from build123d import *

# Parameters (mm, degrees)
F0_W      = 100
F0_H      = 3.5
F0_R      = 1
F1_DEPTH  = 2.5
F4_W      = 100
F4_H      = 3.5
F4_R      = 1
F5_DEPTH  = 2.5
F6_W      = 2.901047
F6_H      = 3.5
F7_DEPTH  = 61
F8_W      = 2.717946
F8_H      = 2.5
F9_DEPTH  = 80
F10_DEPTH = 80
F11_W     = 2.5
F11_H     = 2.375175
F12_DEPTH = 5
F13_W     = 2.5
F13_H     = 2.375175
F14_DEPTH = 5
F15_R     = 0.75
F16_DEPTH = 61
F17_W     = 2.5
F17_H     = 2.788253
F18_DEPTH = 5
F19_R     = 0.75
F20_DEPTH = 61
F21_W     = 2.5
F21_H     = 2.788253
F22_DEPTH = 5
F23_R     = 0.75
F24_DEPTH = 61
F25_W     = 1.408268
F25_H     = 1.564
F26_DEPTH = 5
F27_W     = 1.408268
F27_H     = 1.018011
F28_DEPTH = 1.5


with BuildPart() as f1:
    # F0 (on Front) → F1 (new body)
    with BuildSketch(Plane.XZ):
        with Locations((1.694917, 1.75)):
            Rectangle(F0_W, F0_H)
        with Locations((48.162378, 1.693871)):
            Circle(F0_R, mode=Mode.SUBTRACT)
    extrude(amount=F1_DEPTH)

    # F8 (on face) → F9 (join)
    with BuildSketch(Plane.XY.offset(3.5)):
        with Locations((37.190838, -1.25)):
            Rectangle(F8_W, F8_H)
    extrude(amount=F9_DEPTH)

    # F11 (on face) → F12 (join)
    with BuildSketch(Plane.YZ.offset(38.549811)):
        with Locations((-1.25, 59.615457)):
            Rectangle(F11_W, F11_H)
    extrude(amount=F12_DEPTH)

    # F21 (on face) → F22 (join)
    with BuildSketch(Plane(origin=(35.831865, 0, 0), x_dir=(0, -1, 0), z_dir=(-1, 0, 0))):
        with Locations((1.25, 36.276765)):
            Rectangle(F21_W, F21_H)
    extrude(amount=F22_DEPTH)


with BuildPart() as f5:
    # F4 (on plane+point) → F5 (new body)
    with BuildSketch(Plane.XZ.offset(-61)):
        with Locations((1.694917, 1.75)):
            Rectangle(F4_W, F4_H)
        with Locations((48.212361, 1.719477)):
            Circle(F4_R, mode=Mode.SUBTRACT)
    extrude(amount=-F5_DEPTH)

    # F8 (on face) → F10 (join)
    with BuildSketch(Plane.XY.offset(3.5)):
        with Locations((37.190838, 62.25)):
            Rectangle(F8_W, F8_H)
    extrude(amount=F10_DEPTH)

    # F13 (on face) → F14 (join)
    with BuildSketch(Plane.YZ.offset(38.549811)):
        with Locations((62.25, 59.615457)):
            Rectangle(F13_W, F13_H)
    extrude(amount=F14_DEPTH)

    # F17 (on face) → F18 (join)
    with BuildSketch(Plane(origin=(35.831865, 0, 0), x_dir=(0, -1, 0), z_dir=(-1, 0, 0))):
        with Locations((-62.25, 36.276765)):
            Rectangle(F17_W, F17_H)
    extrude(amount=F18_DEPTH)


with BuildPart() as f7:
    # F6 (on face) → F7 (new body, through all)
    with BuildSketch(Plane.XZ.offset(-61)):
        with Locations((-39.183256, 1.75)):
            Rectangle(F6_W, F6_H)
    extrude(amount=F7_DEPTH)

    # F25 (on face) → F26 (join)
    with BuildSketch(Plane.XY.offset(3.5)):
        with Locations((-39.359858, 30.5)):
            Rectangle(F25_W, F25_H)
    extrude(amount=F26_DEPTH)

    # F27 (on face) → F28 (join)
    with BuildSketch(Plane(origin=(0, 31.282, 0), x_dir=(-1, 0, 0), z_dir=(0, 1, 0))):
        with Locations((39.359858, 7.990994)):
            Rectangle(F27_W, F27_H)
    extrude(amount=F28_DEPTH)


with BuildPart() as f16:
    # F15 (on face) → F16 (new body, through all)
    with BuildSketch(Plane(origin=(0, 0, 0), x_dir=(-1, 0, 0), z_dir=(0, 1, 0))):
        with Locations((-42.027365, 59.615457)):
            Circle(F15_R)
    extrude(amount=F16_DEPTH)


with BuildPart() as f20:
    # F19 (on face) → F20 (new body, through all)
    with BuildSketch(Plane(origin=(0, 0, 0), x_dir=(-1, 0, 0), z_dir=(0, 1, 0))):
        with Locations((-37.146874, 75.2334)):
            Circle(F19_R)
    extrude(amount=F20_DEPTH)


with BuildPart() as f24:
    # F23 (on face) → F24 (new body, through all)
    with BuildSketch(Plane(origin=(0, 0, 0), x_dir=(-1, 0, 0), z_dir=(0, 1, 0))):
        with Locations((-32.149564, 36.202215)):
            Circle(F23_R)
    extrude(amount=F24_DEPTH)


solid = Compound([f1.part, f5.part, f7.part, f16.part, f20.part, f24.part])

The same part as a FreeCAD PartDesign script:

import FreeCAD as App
import Part
import Sketcher

doc = App.newDocument("Part")
body = doc.addObject("PartDesign::Body", "Body")

# Sketch on XZ plane
sketch1 = body.newObject("Sketcher::SketchObject", "Sketch")
sketch1.AttachmentSupport = (doc.getObject("XZ_Plane"), [""])
sketch1.MapMode = "FlatFace"
sketch1.addGeometry([
    Part.LineSegment(App.Vector(-48.3, 3.5, 0), App.Vector(-48.3, 0, 0)),  # 0
    Part.LineSegment(App.Vector(-48.3, 0, 0), App.Vector(51.7, 0, 0)),  # 1
    Part.LineSegment(App.Vector(51.7, 0, 0), App.Vector(51.7, 3.5, 0)),  # 2
    Part.LineSegment(App.Vector(51.7, 3.5, 0), App.Vector(-48.3, 3.5, 0)),  # 3
    Part.Circle(App.Vector(48.2, 1.7, 0), App.Vector(0, 0, 1), 1),  # 4
], False)
sketch1.addConstraint([
    Sketcher.Constraint("Coincident", 0, 2, 1, 1),
    Sketcher.Constraint("Coincident", 1, 2, 2, 1),
    Sketcher.Constraint("Coincident", 2, 2, 3, 1),
    Sketcher.Constraint("Coincident", 3, 2, 0, 1),
    Sketcher.Constraint("Vertical", 0),
    Sketcher.Constraint("Horizontal", 1),
    Sketcher.Constraint("Vertical", 2),
    Sketcher.Constraint("Horizontal", 3),
    Sketcher.Constraint("PointOnObject", 0, 2, -1),
    Sketcher.Constraint("Diameter", 4, 2.0),
    Sketcher.Constraint("DistanceX", 1, 1, 1, 2, 100.0),
    Sketcher.Constraint("DistanceY", 0, 2, 0, 1, 3.5),
    Sketcher.Constraint("DistanceY", -1, 1, 4, 3, 1.693871),
    Sketcher.Constraint("DistanceX", 0, 2, 4, 3, 96.467461),
    Sketcher.Constraint("DistanceX", -1, 1, 4, 3, 48.162378),
])
pad1 = body.newObject("PartDesign::Pad", "Pad")
pad1.Profile = sketch1
pad1.Length = 2.5

# Sketch on XY plane
sketch2 = body.newObject("Sketcher::SketchObject", "Sketch001")
sketch2.AttachmentSupport = (doc.getObject("XY_Plane"), [""])
sketch2.MapMode = "FlatFace"
sketch2.AttachmentOffset = App.Placement(App.Vector(0, 0, 3.5), App.Rotation())
sketch2.addGeometry([
    Part.LineSegment(App.Vector(35.8, 0, 0), App.Vector(35.8, -2.5, 0)),
    Part.LineSegment(App.Vector(35.8, -2.5, 0), App.Vector(38.5, -2.5, 0)),
    Part.LineSegment(App.Vector(38.5, -2.5, 0), App.Vector(38.5, 0, 0)),
    Part.LineSegment(App.Vector(38.5, 0, 0), App.Vector(35.8, 0, 0)),
], False)
sketch2.addConstraint([
    Sketcher.Constraint("Coincident", 0, 2, 1, 1),
    Sketcher.Constraint("Coincident", 1, 2, 2, 1),
    Sketcher.Constraint("Coincident", 2, 2, 3, 1),
    Sketcher.Constraint("Coincident", 3, 2, 0, 1),
    Sketcher.Constraint("Vertical", 0),
    Sketcher.Constraint("Horizontal", 1),
    Sketcher.Constraint("Vertical", 2),
    Sketcher.Constraint("Horizontal", 3),
    Sketcher.Constraint("PointOnObject", 2, 2, -1),
    Sketcher.Constraint("DistanceY", 0, 2, 0, 1, 2.5),
    Sketcher.Constraint("DistanceX", 1, 1, 1, 2, 2.717946),
    Sketcher.Constraint("DistanceX", -1, 1, 1, 2, 38.549811),
])
pad2 = body.newObject("PartDesign::Pad", "Pad001")
pad2.Profile = sketch2
pad2.Length = 80

# Sketch on YZ plane
sketch3 = body.newObject("Sketcher::SketchObject", "Sketch002")
sketch3.AttachmentSupport = (doc.getObject("YZ_Plane"), [""])
sketch3.MapMode = "FlatFace"
sketch3.AttachmentOffset = App.Placement(App.Vector(0, 0, 38.549811), App.Rotation())
sketch3.addGeometry([
    Part.LineSegment(App.Vector(-2.5, 60.8, 0), App.Vector(-2.5, 58.4, 0)),
    Part.LineSegment(App.Vector(-2.5, 58.4, 0), App.Vector(0, 58.4, 0)),
    Part.LineSegment(App.Vector(0, 58.4, 0), App.Vector(0, 60.8, 0)),
    Part.LineSegment(App.Vector(0, 60.8, 0), App.Vector(-2.5, 60.8, 0)),
], False)
sketch3.addConstraint([
    Sketcher.Constraint("Coincident", 0, 2, 1, 1),
    Sketcher.Constraint("Coincident", 1, 2, 2, 1),
    Sketcher.Constraint("Coincident", 2, 2, 3, 1),
    Sketcher.Constraint("Coincident", 3, 2, 0, 1),
    Sketcher.Constraint("Vertical", 0),
    Sketcher.Constraint("Horizontal", 1),
    Sketcher.Constraint("Vertical", 2),
    Sketcher.Constraint("Horizontal", 3),
    Sketcher.Constraint("PointOnObject", 1, 2, -2),
    Sketcher.Constraint("DistanceX", 1, 1, 1, 2, 2.5),
    Sketcher.Constraint("DistanceY", 0, 2, 0, 1, 2.375175),
    Sketcher.Constraint("DistanceY", -1, 1, 0, 2, 58.427869),
])
pad3 = body.newObject("PartDesign::Pad", "Pad002")
pad3.Profile = sketch3
pad3.Length = 5

# Sketch on YZ plane
sketch4 = body.newObject("Sketcher::SketchObject", "Sketch003")
sketch4.AttachmentSupport = (doc.getObject("YZ_Plane"), [""])
sketch4.MapMode = "FlatFace"
sketch4.AttachmentOffset = App.Placement(App.Vector(0, 0, 35.831865), App.Rotation())
sketch4.addGeometry([
    Part.LineSegment(App.Vector(0, 37.7, 0), App.Vector(0, 34.9, 0)),
    Part.LineSegment(App.Vector(0, 34.9, 0), App.Vector(-2.5, 34.9, 0)),
    Part.LineSegment(App.Vector(-2.5, 34.9, 0), App.Vector(-2.5, 37.7, 0)),
    Part.LineSegment(App.Vector(-2.5, 37.7, 0), App.Vector(0, 37.7, 0)),
], False)
sketch4.addConstraint([
    Sketcher.Constraint("Coincident", 0, 2, 1, 1),
    Sketcher.Constraint("Coincident", 1, 2, 2, 1),
    Sketcher.Constraint("Coincident", 2, 2, 3, 1),
    Sketcher.Constraint("Coincident", 3, 2, 0, 1),
    Sketcher.Constraint("Vertical", 0),
    Sketcher.Constraint("Horizontal", 1),
    Sketcher.Constraint("Vertical", 2),
    Sketcher.Constraint("Horizontal", 3),
    Sketcher.Constraint("PointOnObject", 0, 2, -2),
    Sketcher.Constraint("DistanceX", 1, 2, 1, 1, 2.5),
    Sketcher.Constraint("DistanceY", 0, 2, 0, 1, 2.788253),
    Sketcher.Constraint("DistanceY", -1, 1, 0, 2, 34.882638),
])
pad4 = body.newObject("PartDesign::Pad", "Pad003")
pad4.Profile = sketch4
pad4.Length = 5
pad4.Reversed = True
body2 = doc.addObject("PartDesign::Body", "Body001")

# Sketch on XZ plane
sketch5 = body2.newObject("Sketcher::SketchObject", "Sketch004")
sketch5.AttachmentSupport = (doc.getObject("XZ_Plane001"), [""])
sketch5.MapMode = "FlatFace"
sketch5.AttachmentOffset = App.Placement(App.Vector(0, 0, -61), App.Rotation())
sketch5.addGeometry([
    Part.LineSegment(App.Vector(-48.3, 3.5, 0), App.Vector(-48.3, 0, 0)),  # 0
    Part.LineSegment(App.Vector(-48.3, 0, 0), App.Vector(51.7, 0, 0)),  # 1
    Part.LineSegment(App.Vector(51.7, 0, 0), App.Vector(51.7, 3.5, 0)),  # 2
    Part.LineSegment(App.Vector(51.7, 3.5, 0), App.Vector(-48.3, 3.5, 0)),  # 3
    Part.Circle(App.Vector(48.2, 1.7, 0), App.Vector(0, 0, 1), 1),  # 4
], False)
sketch5.addConstraint([
    Sketcher.Constraint("Coincident", 0, 2, 1, 1),
    Sketcher.Constraint("Coincident", 1, 2, 2, 1),
    Sketcher.Constraint("Coincident", 2, 2, 3, 1),
    Sketcher.Constraint("Coincident", 3, 2, 0, 1),
    Sketcher.Constraint("Vertical", 0),
    Sketcher.Constraint("Horizontal", 1),
    Sketcher.Constraint("Vertical", 2),
    Sketcher.Constraint("Horizontal", 3),
    Sketcher.Constraint("PointOnObject", 0, 2, -1),
    Sketcher.Constraint("Diameter", 4, 2.0),
    Sketcher.Constraint("DistanceX", 1, 1, 1, 2, 100.0),
    Sketcher.Constraint("DistanceY", 0, 2, 0, 1, 3.5),
    Sketcher.Constraint("DistanceX", -1, 1, 4, 3, 48.212361),
    Sketcher.Constraint("DistanceY", -1, 1, 4, 3, 1.719477),
    Sketcher.Constraint("DistanceX", 0, 2, -1, 1, 48.305083),
])
pad5 = body2.newObject("PartDesign::Pad", "Pad004")
pad5.Profile = sketch5
pad5.Length = 2.5
pad5.Reversed = True

# Sketch on XY plane
sketch6 = body2.newObject("Sketcher::SketchObject", "Sketch005")
sketch6.AttachmentSupport = (doc.getObject("XY_Plane001"), [""])
sketch6.MapMode = "FlatFace"
sketch6.AttachmentOffset = App.Placement(App.Vector(0, 0, 3.5), App.Rotation())
sketch6.addGeometry([
    Part.LineSegment(App.Vector(35.8, 63.5, 0), App.Vector(35.8, 61, 0)),
    Part.LineSegment(App.Vector(35.8, 61, 0), App.Vector(38.5, 61, 0)),
    Part.LineSegment(App.Vector(38.5, 61, 0), App.Vector(38.5, 63.5, 0)),
    Part.LineSegment(App.Vector(38.5, 63.5, 0), App.Vector(35.8, 63.5, 0)),
], False)
sketch6.addConstraint([
    Sketcher.Constraint("Coincident", 0, 2, 1, 1),
    Sketcher.Constraint("Coincident", 1, 2, 2, 1),
    Sketcher.Constraint("Coincident", 2, 2, 3, 1),
    Sketcher.Constraint("Coincident", 3, 2, 0, 1),
    Sketcher.Constraint("Vertical", 0),
    Sketcher.Constraint("Horizontal", 1),
    Sketcher.Constraint("Vertical", 2),
    Sketcher.Constraint("Horizontal", 3),
    Sketcher.Constraint("DistanceY", 0, 2, 0, 1, 2.5),
    Sketcher.Constraint("DistanceY", -1, 1, 0, 2, 61.0),
    Sketcher.Constraint("DistanceX", 1, 1, 1, 2, 2.717946),
    Sketcher.Constraint("DistanceX", -1, 1, 1, 2, 38.549811),
])
pad6 = body2.newObject("PartDesign::Pad", "Pad005")
pad6.Profile = sketch6
pad6.Length = 80

# Sketch on YZ plane
sketch7 = body2.newObject("Sketcher::SketchObject", "Sketch006")
sketch7.AttachmentSupport = (doc.getObject("YZ_Plane001"), [""])
sketch7.MapMode = "FlatFace"
sketch7.AttachmentOffset = App.Placement(App.Vector(0, 0, 38.549811), App.Rotation())
sketch7.addGeometry([
    Part.LineSegment(App.Vector(61, 60.8, 0), App.Vector(61, 58.4, 0)),
    Part.LineSegment(App.Vector(61, 58.4, 0), App.Vector(63.5, 58.4, 0)),
    Part.LineSegment(App.Vector(63.5, 58.4, 0), App.Vector(63.5, 60.8, 0)),
    Part.LineSegment(App.Vector(63.5, 60.8, 0), App.Vector(61, 60.8, 0)),
], False)
sketch7.addConstraint([
    Sketcher.Constraint("Coincident", 0, 2, 1, 1),
    Sketcher.Constraint("Coincident", 1, 2, 2, 1),
    Sketcher.Constraint("Coincident", 2, 2, 3, 1),
    Sketcher.Constraint("Coincident", 3, 2, 0, 1),
    Sketcher.Constraint("Vertical", 0),
    Sketcher.Constraint("Horizontal", 1),
    Sketcher.Constraint("Vertical", 2),
    Sketcher.Constraint("Horizontal", 3),
    Sketcher.Constraint("DistanceX", 1, 1, 1, 2, 2.5),
    Sketcher.Constraint("DistanceX", -1, 1, 0, 2, 61.0),
    Sketcher.Constraint("DistanceY", 0, 2, 0, 1, 2.375175),
    Sketcher.Constraint("DistanceY", -1, 1, 0, 2, 58.427869),
])
pad7 = body2.newObject("PartDesign::Pad", "Pad006")
pad7.Profile = sketch7
pad7.Length = 5

# Sketch on YZ plane
sketch8 = body2.newObject("Sketcher::SketchObject", "Sketch007")
sketch8.AttachmentSupport = (doc.getObject("YZ_Plane001"), [""])
sketch8.MapMode = "FlatFace"
sketch8.AttachmentOffset = App.Placement(App.Vector(0, 0, 35.831865), App.Rotation())
sketch8.addGeometry([
    Part.LineSegment(App.Vector(63.5, 37.7, 0), App.Vector(63.5, 34.9, 0)),
    Part.LineSegment(App.Vector(63.5, 34.9, 0), App.Vector(61, 34.9, 0)),
    Part.LineSegment(App.Vector(61, 34.9, 0), App.Vector(61, 37.7, 0)),
    Part.LineSegment(App.Vector(61, 37.7, 0), App.Vector(63.5, 37.7, 0)),
], False)
sketch8.addConstraint([
    Sketcher.Constraint("Coincident", 0, 2, 1, 1),
    Sketcher.Constraint("Coincident", 1, 2, 2, 1),
    Sketcher.Constraint("Coincident", 2, 2, 3, 1),
    Sketcher.Constraint("Coincident", 3, 2, 0, 1),
    Sketcher.Constraint("Vertical", 0),
    Sketcher.Constraint("Horizontal", 1),
    Sketcher.Constraint("Vertical", 2),
    Sketcher.Constraint("Horizontal", 3),
    Sketcher.Constraint("DistanceX", 1, 2, 1, 1, 2.5),
    Sketcher.Constraint("DistanceX", -1, 1, 1, 2, 61.0),
    Sketcher.Constraint("DistanceY", 0, 2, 0, 1, 2.788253),
    Sketcher.Constraint("DistanceY", -1, 1, 0, 2, 34.882638),
])
pad8 = body2.newObject("PartDesign::Pad", "Pad007")
pad8.Profile = sketch8
pad8.Length = 5
pad8.Reversed = True
body3 = doc.addObject("PartDesign::Body", "Body002")

# Sketch on XZ plane
sketch9 = body3.newObject("Sketcher::SketchObject", "Sketch008")
sketch9.AttachmentSupport = (doc.getObject("XZ_Plane002"), [""])
sketch9.MapMode = "FlatFace"
sketch9.AttachmentOffset = App.Placement(App.Vector(0, 0, -61), App.Rotation())
sketch9.addGeometry([
    Part.LineSegment(App.Vector(-40.6, 3.5, 0), App.Vector(-40.6, 0, 0)),
    Part.LineSegment(App.Vector(-40.6, 0, 0), App.Vector(-37.7, 0, 0)),
    Part.LineSegment(App.Vector(-37.7, 0, 0), App.Vector(-37.7, 3.5, 0)),
    Part.LineSegment(App.Vector(-37.7, 3.5, 0), App.Vector(-40.6, 3.5, 0)),
], False)
sketch9.addConstraint([
    Sketcher.Constraint("Coincident", 0, 2, 1, 1),
    Sketcher.Constraint("Coincident", 1, 2, 2, 1),
    Sketcher.Constraint("Coincident", 2, 2, 3, 1),
    Sketcher.Constraint("Coincident", 3, 2, 0, 1),
    Sketcher.Constraint("Vertical", 0),
    Sketcher.Constraint("Horizontal", 1),
    Sketcher.Constraint("Vertical", 2),
    Sketcher.Constraint("Horizontal", 3),
    Sketcher.Constraint("PointOnObject", 0, 2, -1),
    Sketcher.Constraint("DistanceY", 0, 2, 0, 1, 3.5),
    Sketcher.Constraint("DistanceX", 1, 1, 1, 2, 2.901047),
    Sketcher.Constraint("DistanceX", 0, 2, -1, 1, 40.63378),
])
pad9 = body3.newObject("PartDesign::Pad", "Pad008")
pad9.Profile = sketch9
pad9.Length = 61

# Sketch on XY plane
sketch10 = body3.newObject("Sketcher::SketchObject", "Sketch009")
sketch10.AttachmentSupport = (doc.getObject("XY_Plane002"), [""])
sketch10.MapMode = "FlatFace"
sketch10.AttachmentOffset = App.Placement(App.Vector(0, 0, 3.5), App.Rotation())
sketch10.addGeometry([
    Part.LineSegment(App.Vector(-40.1, 31.3, 0), App.Vector(-40.1, 29.7, 0)),
    Part.LineSegment(App.Vector(-40.1, 29.7, 0), App.Vector(-38.7, 29.7, 0)),
    Part.LineSegment(App.Vector(-38.7, 29.7, 0), App.Vector(-38.7, 31.3, 0)),
    Part.LineSegment(App.Vector(-38.7, 31.3, 0), App.Vector(-40.1, 31.3, 0)),
], False)
sketch10.addConstraint([
    Sketcher.Constraint("Coincident", 0, 2, 1, 1),
    Sketcher.Constraint("Coincident", 1, 2, 2, 1),
    Sketcher.Constraint("Coincident", 2, 2, 3, 1),
    Sketcher.Constraint("Coincident", 3, 2, 0, 1),
    Sketcher.Constraint("Vertical", 0),
    Sketcher.Constraint("Horizontal", 1),
    Sketcher.Constraint("Vertical", 2),
    Sketcher.Constraint("Horizontal", 3),
    Sketcher.Constraint("DistanceY", 0, 2, 0, 1, 1.564),
    Sketcher.Constraint("DistanceY", -1, 1, 0, 2, 29.718),
    Sketcher.Constraint("DistanceX", 1, 1, 1, 2, 1.408268),
    Sketcher.Constraint("DistanceX", 0, 2, -1, 1, 40.063992),
])
pad10 = body3.newObject("PartDesign::Pad", "Pad009")
pad10.Profile = sketch10
pad10.Length = 5

# Sketch on XZ plane
sketch11 = body3.newObject("Sketcher::SketchObject", "Sketch010")
sketch11.AttachmentSupport = (doc.getObject("XZ_Plane002"), [""])
sketch11.MapMode = "FlatFace"
sketch11.AttachmentOffset = App.Placement(App.Vector(0, 0, -31.282), App.Rotation())
sketch11.addGeometry([
    Part.LineSegment(App.Vector(-38.7, 8.5, 0), App.Vector(-38.7, 7.5, 0)),
    Part.LineSegment(App.Vector(-38.7, 7.5, 0), App.Vector(-40.1, 7.5, 0)),
    Part.LineSegment(App.Vector(-40.1, 7.5, 0), App.Vector(-40.1, 8.5, 0)),
    Part.LineSegment(App.Vector(-40.1, 8.5, 0), App.Vector(-38.7, 8.5, 0)),
], False)
sketch11.addConstraint([
    Sketcher.Constraint("Coincident", 0, 2, 1, 1),
    Sketcher.Constraint("Coincident", 1, 2, 2, 1),
    Sketcher.Constraint("Coincident", 2, 2, 3, 1),
    Sketcher.Constraint("Coincident", 3, 2, 0, 1),
    Sketcher.Constraint("Vertical", 0),
    Sketcher.Constraint("Horizontal", 1),
    Sketcher.Constraint("Vertical", 2),
    Sketcher.Constraint("Horizontal", 3),
    Sketcher.Constraint("DistanceY", -1, 1, 2, 2, 8.499999),
    Sketcher.Constraint("DistanceY", 0, 2, 0, 1, 1.018011),
    Sketcher.Constraint("DistanceX", 1, 2, 1, 1, 1.408268),
    Sketcher.Constraint("DistanceX", 0, 2, -1, 1, 38.655724),
])
pad11 = body3.newObject("PartDesign::Pad", "Pad010")
pad11.Profile = sketch11
pad11.Length = 1.5
pad11.Reversed = True
body4 = doc.addObject("PartDesign::Body", "Body003")

# Sketch on XZ plane
sketch12 = body4.newObject("Sketcher::SketchObject", "Sketch011")
sketch12.AttachmentSupport = (doc.getObject("XZ_Plane003"), [""])
sketch12.MapMode = "FlatFace"
sketch12.addGeometry(Part.Circle(App.Vector(42, 59.6, 0), App.Vector(0, 0, 1), 0.8), False)
sketch12.addConstraint([
    Sketcher.Constraint("Diameter", 0, 1.5),
    Sketcher.Constraint("DistanceX", -1, 1, 0, 3, 42.027365),
    Sketcher.Constraint("DistanceY", -1, 1, 0, 3, 59.615457),
])
pad12 = body4.newObject("PartDesign::Pad", "Pad011")
pad12.Profile = sketch12
pad12.Length = 61
pad12.Reversed = True
body5 = doc.addObject("PartDesign::Body", "Body004")

# Sketch on XZ plane
sketch13 = body5.newObject("Sketcher::SketchObject", "Sketch012")
sketch13.AttachmentSupport = (doc.getObject("XZ_Plane004"), [""])
sketch13.MapMode = "FlatFace"
sketch13.addGeometry(Part.Circle(App.Vector(37.1, 75.2, 0), App.Vector(0, 0, 1), 0.8), False)
sketch13.addConstraint([
    Sketcher.Constraint("Diameter", 0, 1.5),
    Sketcher.Constraint("DistanceY", -1, 1, 0, 3, 75.2334),
    Sketcher.Constraint("DistanceX", -1, 1, 0, 3, 37.146874),
])
pad13 = body5.newObject("PartDesign::Pad", "Pad012")
pad13.Profile = sketch13
pad13.Length = 61
pad13.Reversed = True
body6 = doc.addObject("PartDesign::Body", "Body005")

# Sketch on XZ plane
sketch14 = body6.newObject("Sketcher::SketchObject", "Sketch013")
sketch14.AttachmentSupport = (doc.getObject("XZ_Plane005"), [""])
sketch14.MapMode = "FlatFace"
sketch14.addGeometry(Part.Circle(App.Vector(32.1, 36.2, 0), App.Vector(0, 0, 1), 0.8), False)
sketch14.addConstraint([
    Sketcher.Constraint("Diameter", 0, 1.5),
    Sketcher.Constraint("DistanceX", -1, 1, 0, 3, 32.149564),
    Sketcher.Constraint("DistanceY", -1, 1, 0, 3, 36.202215),
])
pad14 = body6.newObject("PartDesign::Pad", "Pad013")
pad14.Profile = sketch14
pad14.Length = 61
pad14.Reversed = True

doc.recompute()
